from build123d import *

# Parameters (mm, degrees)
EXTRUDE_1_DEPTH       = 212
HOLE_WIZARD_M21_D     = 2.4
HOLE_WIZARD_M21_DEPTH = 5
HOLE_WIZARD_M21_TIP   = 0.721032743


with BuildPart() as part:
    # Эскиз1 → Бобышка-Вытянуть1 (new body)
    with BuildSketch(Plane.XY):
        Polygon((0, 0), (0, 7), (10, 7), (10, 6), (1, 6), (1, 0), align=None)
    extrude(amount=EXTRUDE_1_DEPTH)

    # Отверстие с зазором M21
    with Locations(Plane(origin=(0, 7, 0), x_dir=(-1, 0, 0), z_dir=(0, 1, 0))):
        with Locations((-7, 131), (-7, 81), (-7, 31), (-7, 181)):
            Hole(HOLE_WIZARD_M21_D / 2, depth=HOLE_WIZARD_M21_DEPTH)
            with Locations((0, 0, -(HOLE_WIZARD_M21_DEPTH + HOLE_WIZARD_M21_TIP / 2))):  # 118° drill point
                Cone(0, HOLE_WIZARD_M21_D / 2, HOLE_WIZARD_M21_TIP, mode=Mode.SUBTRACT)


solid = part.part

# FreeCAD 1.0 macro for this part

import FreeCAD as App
import Part
import Sketcher


def add_polygon(sketch, points):
    """Adds a closed chain of lines whose ends are joined by coincident constraints."""
    first, n = sketch.GeometryCount, len(points)
    for a, b in zip(points, points[1:] + points[:1]):
        sketch.addGeometry(Part.LineSegment(App.Vector(*a, 0), App.Vector(*b, 0)), False)
    for i in range(n):
        sketch.addConstraint(Sketcher.Constraint("Coincident", first + i, 2, first + (i + 1) % n, 1))

doc = App.newDocument("Part")
params = doc.addObject("Spreadsheet::Sheet", "Params")
for row, (alias, value) in enumerate([
    ("sketch1_width", "1 mm"),
    ("sketch1_width2", "9 mm"),
    ("sketch1_height", "7 mm"),
    ("pad1_length", "212 mm"),
    ("sketch2_diameter", "2.4 mm"),
    ("hole_diameter", "2.4 mm"),
    ("hole_depth", "5 mm"),
], start=1):
    params.set(f"A{row}", alias)
    params.set(f"B{row}", "=" + value)
    params.setAlias(f"B{row}", alias)

body = doc.addObject("PartDesign::Body", "Body")

# Sketch on XY plane
sketch1 = body.newObject("Sketcher::SketchObject", "Sketch")
sketch1.AttachmentSupport = (doc.getObject("XY_Plane"), [""])
sketch1.MapMode = "FlatFace"
add_polygon(sketch1, [(0, 7), (0, 0), (1, 0), (1, 6), (10, 6), (10, 7)])  # lines 0-5
sketch1.addConstraint([
    Sketcher.Constraint("Vertical", 0),
    Sketcher.Constraint("Horizontal", 1),
    Sketcher.Constraint("Vertical", 2),
    Sketcher.Constraint("Horizontal", 3),
    Sketcher.Constraint("Vertical", 4),
    Sketcher.Constraint("Horizontal", 5),
    Sketcher.Constraint("Coincident", 0, 2, -1, 1),
    Sketcher.Constraint("Equal", 1, 4),
    Sketcher.Constraint("DistanceX", 1, 1, 1, 2, 1.0),
    Sketcher.Constraint("DistanceX", 3, 1, 3, 2, 9.0),
    Sketcher.Constraint("DistanceY", 0, 2, 0, 1, 7.0),
])
sketch1.setExpression("Constraints[14]", "Params.sketch1_width")
sketch1.setExpression("Constraints[15]", "Params.sketch1_width2")
sketch1.setExpression("Constraints[16]", "Params.sketch1_height")
pad1 = body.newObject("PartDesign::Pad", "Pad")
pad1.Profile = sketch1
pad1.setExpression("Length", "Params.pad1_length")

# Sketch on XZ plane
sketch2 = body.newObject("Sketcher::SketchObject", "Sketch001")
sketch2.AttachmentSupport = (doc.getObject("XZ_Plane"), [""])
sketch2.MapMode = "FlatFace"
sketch2.AttachmentOffset = App.Placement(App.Vector(0, 0, -7), App.Rotation())
sketch2.addGeometry([
    Part.Circle(App.Vector(7, 131, 0), App.Vector(0, 0, 1), 1.2),
    Part.Circle(App.Vector(7, 81, 0), App.Vector(0, 0, 1), 1.2),
    Part.Circle(App.Vector(7, 31, 0), App.Vector(0, 0, 1), 1.2),
    Part.Circle(App.Vector(7, 181, 0), App.Vector(0, 0, 1), 1.2),
], False)
sketch2.addConstraint([
    Sketcher.Constraint("Equal", 0, 1),
    Sketcher.Constraint("Equal", 1, 2),
    Sketcher.Constraint("Equal", 2, 3),
    Sketcher.Constraint("Vertical", 0, 3, 1, 3),
    Sketcher.Constraint("Vertical", 1, 3, 2, 3),
    Sketcher.Constraint("Vertical", 2, 3, 3, 3),
    Sketcher.Constraint("Diameter", 0, 2.4),
    Sketcher.Constraint("DistanceX", -1, 1, 0, 3, 7.0),
    Sketcher.Constraint("DistanceY", -1, 1, 0, 3, 131.0),
    Sketcher.Constraint("DistanceY", -1, 1, 1, 3, 81.0),
    Sketcher.Constraint("DistanceY", -1, 1, 2, 3, 31.0),
    Sketcher.Constraint("DistanceY", -1, 1, 3, 3, 181.0),
])
sketch2.setExpression("Constraints[6]", "Params.sketch2_diameter")
doc.recompute()
hole = body.newObject("PartDesign::Hole", "Hole")
hole.Profile = sketch2
hole.ThreadType = "None"
hole.setExpression("Diameter", "Params.hole_diameter")
hole.DepthType = "Dimension"
hole.setExpression("Depth", "Params.hole_depth")
hole.DrillPoint = "Angled"
hole.DrillPointAngle = 118
hole.Reversed = True

doc.recompute()
